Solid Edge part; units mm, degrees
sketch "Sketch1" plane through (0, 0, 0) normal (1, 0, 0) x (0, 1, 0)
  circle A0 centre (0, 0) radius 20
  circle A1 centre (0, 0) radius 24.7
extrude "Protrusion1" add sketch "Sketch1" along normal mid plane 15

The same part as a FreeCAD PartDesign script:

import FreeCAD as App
import Part
import Sketcher
from FreeCAD import Vector

doc = App.newDocument("Part")
body = doc.addObject("PartDesign::Body", "Body")

# Sketch on YZ plane
sketch1 = body.newObject("Sketcher::SketchObject", "Sketch")
sketch1.AttachmentSupport = (doc.getObject("YZ_Plane"), [""])
sketch1.MapMode = "FlatFace"
sketch1.addGeometry([
    Part.Circle(Vector(0, 0, 0), Vector(0, 0, 1), 25),
    Part.Circle(Vector(0, 0, 0), Vector(0, 0, 1), 20),
], False)
sketch1.addConstraint([
    Sketcher.Constraint("Coincident", 0, 3, -1, 1),
    Sketcher.Constraint("Coincident", 1, 3, -1, 1),
    Sketcher.Constraint("Diameter", 1, 40.0),
    Sketcher.Constraint("Diameter", 0, 49.4),
])
pad1 = body.newObject("PartDesign::Pad", "Pad")
pad1.Profile = sketch1
pad1.Length = 15
pad1.Midplane = True

doc.recompute()
